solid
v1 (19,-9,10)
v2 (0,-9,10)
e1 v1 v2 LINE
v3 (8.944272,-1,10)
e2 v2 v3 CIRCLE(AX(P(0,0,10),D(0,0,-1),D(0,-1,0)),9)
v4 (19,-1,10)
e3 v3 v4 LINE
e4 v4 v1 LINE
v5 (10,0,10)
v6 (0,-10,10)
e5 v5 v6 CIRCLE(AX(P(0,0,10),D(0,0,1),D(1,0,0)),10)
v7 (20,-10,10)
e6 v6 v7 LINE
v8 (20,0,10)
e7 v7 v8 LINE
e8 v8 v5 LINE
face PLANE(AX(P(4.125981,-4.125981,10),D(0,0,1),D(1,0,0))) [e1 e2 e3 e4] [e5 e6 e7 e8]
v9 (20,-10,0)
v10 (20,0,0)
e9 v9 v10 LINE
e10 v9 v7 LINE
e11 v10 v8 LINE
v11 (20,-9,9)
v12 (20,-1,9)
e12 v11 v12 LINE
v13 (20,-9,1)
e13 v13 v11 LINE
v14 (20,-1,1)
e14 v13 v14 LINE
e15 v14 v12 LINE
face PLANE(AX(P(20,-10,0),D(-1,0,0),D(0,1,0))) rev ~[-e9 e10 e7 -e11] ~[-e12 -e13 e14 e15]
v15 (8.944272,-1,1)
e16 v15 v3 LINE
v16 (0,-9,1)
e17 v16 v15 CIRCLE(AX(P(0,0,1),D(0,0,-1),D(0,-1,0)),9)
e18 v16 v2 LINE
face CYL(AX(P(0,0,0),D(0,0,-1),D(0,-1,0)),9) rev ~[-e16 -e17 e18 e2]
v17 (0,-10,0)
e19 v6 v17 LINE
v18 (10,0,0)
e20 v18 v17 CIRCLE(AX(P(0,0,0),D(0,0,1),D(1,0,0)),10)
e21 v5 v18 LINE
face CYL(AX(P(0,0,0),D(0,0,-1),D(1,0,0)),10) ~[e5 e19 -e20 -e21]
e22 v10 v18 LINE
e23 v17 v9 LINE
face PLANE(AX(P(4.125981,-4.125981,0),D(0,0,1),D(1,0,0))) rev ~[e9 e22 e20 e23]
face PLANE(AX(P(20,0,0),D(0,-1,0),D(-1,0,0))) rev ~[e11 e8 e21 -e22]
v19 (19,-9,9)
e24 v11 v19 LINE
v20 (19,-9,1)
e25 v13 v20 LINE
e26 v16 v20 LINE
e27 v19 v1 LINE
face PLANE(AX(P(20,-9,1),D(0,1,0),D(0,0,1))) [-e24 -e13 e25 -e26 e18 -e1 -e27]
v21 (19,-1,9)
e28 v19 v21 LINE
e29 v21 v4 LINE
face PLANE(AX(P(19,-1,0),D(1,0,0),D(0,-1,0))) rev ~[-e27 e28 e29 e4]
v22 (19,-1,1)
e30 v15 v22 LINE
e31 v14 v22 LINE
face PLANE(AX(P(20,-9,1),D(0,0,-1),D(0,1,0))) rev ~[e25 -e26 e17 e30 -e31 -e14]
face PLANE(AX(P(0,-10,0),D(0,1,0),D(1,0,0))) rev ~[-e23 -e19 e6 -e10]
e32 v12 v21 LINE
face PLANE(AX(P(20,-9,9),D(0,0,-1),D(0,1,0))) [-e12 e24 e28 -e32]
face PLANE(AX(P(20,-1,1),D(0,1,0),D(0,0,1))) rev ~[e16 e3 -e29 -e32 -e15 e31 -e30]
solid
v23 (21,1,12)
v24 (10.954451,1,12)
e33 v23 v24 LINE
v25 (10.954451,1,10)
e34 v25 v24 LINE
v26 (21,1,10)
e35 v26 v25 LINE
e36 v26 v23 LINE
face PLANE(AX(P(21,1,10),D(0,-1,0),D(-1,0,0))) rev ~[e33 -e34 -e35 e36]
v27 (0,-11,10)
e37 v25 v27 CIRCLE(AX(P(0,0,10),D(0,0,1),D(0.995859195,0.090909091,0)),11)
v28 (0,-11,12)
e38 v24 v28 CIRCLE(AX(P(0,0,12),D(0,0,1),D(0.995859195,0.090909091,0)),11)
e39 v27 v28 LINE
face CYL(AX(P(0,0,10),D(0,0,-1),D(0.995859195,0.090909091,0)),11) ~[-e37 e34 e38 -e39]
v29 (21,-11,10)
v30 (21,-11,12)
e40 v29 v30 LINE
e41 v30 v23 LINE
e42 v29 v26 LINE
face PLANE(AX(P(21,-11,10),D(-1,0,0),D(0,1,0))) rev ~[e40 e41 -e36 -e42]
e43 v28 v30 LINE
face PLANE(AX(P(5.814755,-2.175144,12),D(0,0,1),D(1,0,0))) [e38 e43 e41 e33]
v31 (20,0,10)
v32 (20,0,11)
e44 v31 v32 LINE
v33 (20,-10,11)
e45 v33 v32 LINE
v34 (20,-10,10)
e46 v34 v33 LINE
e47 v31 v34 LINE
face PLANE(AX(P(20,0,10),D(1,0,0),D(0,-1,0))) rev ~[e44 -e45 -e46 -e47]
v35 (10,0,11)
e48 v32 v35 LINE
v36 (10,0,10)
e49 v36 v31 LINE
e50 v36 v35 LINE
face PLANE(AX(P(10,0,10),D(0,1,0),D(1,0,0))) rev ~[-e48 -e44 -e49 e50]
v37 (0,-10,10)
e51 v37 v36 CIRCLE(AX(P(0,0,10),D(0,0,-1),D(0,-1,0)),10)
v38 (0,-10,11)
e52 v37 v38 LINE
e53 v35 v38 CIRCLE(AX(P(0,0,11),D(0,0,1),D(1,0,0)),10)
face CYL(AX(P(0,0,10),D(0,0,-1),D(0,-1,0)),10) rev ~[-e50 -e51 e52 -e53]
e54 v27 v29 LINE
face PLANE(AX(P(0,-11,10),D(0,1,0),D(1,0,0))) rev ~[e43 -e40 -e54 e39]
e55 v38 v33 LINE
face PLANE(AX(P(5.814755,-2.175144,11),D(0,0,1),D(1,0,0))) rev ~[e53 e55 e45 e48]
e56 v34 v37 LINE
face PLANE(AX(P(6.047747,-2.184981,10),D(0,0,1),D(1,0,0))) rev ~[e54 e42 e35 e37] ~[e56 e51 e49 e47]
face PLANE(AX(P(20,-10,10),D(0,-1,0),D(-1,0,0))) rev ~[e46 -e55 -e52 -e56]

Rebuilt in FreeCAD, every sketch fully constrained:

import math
import FreeCAD as App
import Part
import Sketcher
from FreeCAD import Vector
Q = App.Units.Quantity


def add_polygon(sketch, points):
    """Adds a closed chain of lines whose ends are joined by coincident constraints."""
    first, n = sketch.GeometryCount, len(points)
    for a, b in zip(points, points[1:] + points[:1]):
        sketch.addGeometry(Part.LineSegment(App.Vector(*a, 0), App.Vector(*b, 0)), False)
    for i in range(n):
        sketch.addConstraint(Sketcher.Constraint("Coincident", first + i, 2, first + (i + 1) % n, 1))

doc = App.newDocument("Part")
body = doc.addObject("PartDesign::Body", "Body")

sketch1 = body.newObject("Sketcher::SketchObject", "Sketch")
sketch1.AttachmentSupport = (doc.getObject("XY_Plane"), [""])
sketch1.MapMode = "FlatFace"
sketch1.addGeometry([
    Part.LineSegment(Vector(0, -10, 0), Vector(20, -10, 0)),
    Part.LineSegment(Vector(20, -10, 0), Vector(20, 0, 0)),
    Part.LineSegment(Vector(20, 0, 0), Vector(10, 0, 0)),
    Part.ArcOfCircle(Part.Circle(Vector(0, 0, 0), Vector(0, 0, 1), 10), math.radians(0), math.radians(270)),
], False)
sketch1.addConstraint([
    Sketcher.Constraint("Coincident", 0, 2, 1, 1),
    Sketcher.Constraint("Coincident", 1, 2, 2, 1),
    Sketcher.Constraint("Coincident", 2, 2, 3, 1),
    Sketcher.Constraint("Tangent", 3, 2, 0, 1),
    Sketcher.Constraint("Horizontal", 0),
    Sketcher.Constraint("Vertical", 1),
    Sketcher.Constraint("Horizontal", 2),
    Sketcher.Constraint("Coincident", 3, 3, -1, 1),
    Sketcher.Constraint("PointOnObject", 1, 2, -1),
    Sketcher.Constraint("Equal", 2, 1),
    Sketcher.Constraint("Radius", 3, Q("10 mm")),
])
pad1 = body.newObject("PartDesign::Pad", "Pad")
pad1.Profile = sketch1
pad1.Length = 10

sketch2 = body.newObject("Sketcher::SketchObject", "Sketch001")
sketch2.AttachmentSupport = (doc.getObject("XY_Plane"), [""])
sketch2.MapMode = "FlatFace"
sketch2.addGeometry([
    Part.LineSegment(Vector(19, -9, 0), Vector(0, -9, 0)),
    Part.ArcOfCircle(Part.Circle(Vector(0, 0, 0), Vector(0, 0, 1), 9), math.radians(-6), math.radians(270)),
    Part.LineSegment(Vector(9, -1, 0), Vector(19, -1, 0)),
    Part.LineSegment(Vector(19, -1, 0), Vector(19, -9, 0)),
], False)
sketch2.addConstraint([
    Sketcher.Constraint("Tangent", 0, 2, 1, 2),
    Sketcher.Constraint("Coincident", 1, 1, 2, 1),
    Sketcher.Constraint("Coincident", 2, 2, 3, 1),
    Sketcher.Constraint("Coincident", 3, 2, 0, 1),
    Sketcher.Constraint("Horizontal", 0),
    Sketcher.Constraint("Horizontal", 2),
    Sketcher.Constraint("Vertical", 3),
    Sketcher.Constraint("Coincident", 1, 3, -1, 1),
    Sketcher.Constraint("Radius", 1, Q("9 mm")),
    Sketcher.Constraint("DistanceX", 0, 2, 0, 1, Q("19 mm")),
    Sketcher.Constraint("DistanceY", 3, 2, 3, 1, Q("8 mm")),
])
pocket1 = body.newObject("PartDesign::Pocket", "Pocket")
pocket1.Profile = sketch2
pocket1.Type = "ThroughAll"
pocket1.Reversed = True

sketch3 = body.newObject("Sketcher::SketchObject", "Sketch002")
sketch3.AttachmentSupport = (doc.getObject("YZ_Plane"), [""])
sketch3.MapMode = "FlatFace"
sketch3.AttachmentOffset = App.Placement(Vector(0, 0, 20), App.Rotation())
add_polygon(sketch3, [(-9, 9), (-9, 1), (-1, 1), (-1, 9)])
sketch3.addConstraint([
    Sketcher.Constraint("Vertical", 0),
    Sketcher.Constraint("Horizontal", 1),
    Sketcher.Constraint("Vertical", 2),
    Sketcher.Constraint("Horizontal", 3),
    Sketcher.Constraint("Equal", 3, 0),
    Sketcher.Constraint("DistanceX", 1, 1, 1, 2, Q("8 mm")),
    Sketcher.Constraint("DistanceX", 0, 2, -1, 1, Q("9 mm")),
    Sketcher.Constraint("DistanceY", -1, 1, 0, 2, Q("1 mm")),
])
pocket2 = body.newObject("PartDesign::Pocket", "Pocket001")
pocket2.Profile = sketch3
pocket2.Length = 1

sketch4 = body.newObject("Sketcher::SketchObject", "Sketch003")
sketch4.AttachmentSupport = (doc.getObject("XY_Plane"), [""])
sketch4.MapMode = "FlatFace"
sketch4.addGeometry([
    Part.LineSegment(Vector(20, 0, 0), Vector(10, 0, 0)),
    Part.ArcOfCircle(Part.Circle(Vector(0, 0, 0), Vector(0, 0, 1), 10), math.radians(0), math.radians(270)),
    Part.LineSegment(Vector(0, -10, 0), Vector(20, -10, 0)),
    Part.LineSegment(Vector(20, -10, 0), Vector(20, 0, 0)),
], False)
sketch4.addConstraint([
    Sketcher.Constraint("Coincident", 0, 2, 1, 1),
    Sketcher.Constraint("Tangent", 1, 2, 2, 1),
    Sketcher.Constraint("Coincident", 2, 2, 3, 1),
    Sketcher.Constraint("Coincident", 3, 2, 0, 1),
    Sketcher.Constraint("Horizontal", 0),
    Sketcher.Constraint("Horizontal", 2),
    Sketcher.Constraint("Vertical", 3),
    Sketcher.Constraint("Coincident", 1, 3, -1, 1),
    Sketcher.Constraint("PointOnObject", 0, 2, -1),
    Sketcher.Constraint("Equal", 0, 3),
    Sketcher.Constraint("Radius", 1, Q("10 mm")),
])
pad2 = body.newObject("PartDesign::Pad", "Pad001")
pad2.Profile = sketch4
pad2.Length = 1
body2 = doc.addObject("PartDesign::Body", "Body001")

sketch5 = body2.newObject("Sketcher::SketchObject", "Sketch004")
sketch5.AttachmentSupport = (doc.getObject("XY_Plane001"), [""])
sketch5.MapMode = "FlatFace"
sketch5.AttachmentOffset = App.Placement(Vector(0, 0, 10), App.Rotation())
sketch5.addGeometry([
    Part.LineSegment(Vector(21, 1, 0), Vector(11, 1, 0)),
    Part.ArcOfCircle(Part.Circle(Vector(0, 0, 0), Vector(0, 0, 1), 11), math.radians(5), math.radians(270)),
    Part.LineSegment(Vector(0, -11, 0), Vector(21, -11, 0)),
    Part.LineSegment(Vector(21, -11, 0), Vector(21, 1, 0)),
    Part.LineSegment(Vector(20, 0, 0), Vector(20, -10, 0)),
    Part.LineSegment(Vector(20, -10, 0), Vector(0, -10, 0)),
    Part.ArcOfCircle(Part.Circle(Vector(0, 0, 0), Vector(0, 0, 1), 10), math.radians(0), math.radians(270)),
    Part.LineSegment(Vector(10, 0, 0), Vector(20, 0, 0)),
], False)
sketch5.addConstraint([
    Sketcher.Constraint("Coincident", 0, 2, 1, 1),
    Sketcher.Constraint("Tangent", 1, 2, 2, 1),
    Sketcher.Constraint("Coincident", 2, 2, 3, 1),
    Sketcher.Constraint("Coincident", 3, 2, 0, 1),
    Sketcher.Constraint("Coincident", 4, 2, 5, 1),
    Sketcher.Constraint("Tangent", 5, 2, 6, 2),
    Sketcher.Constraint("Coincident", 6, 1, 7, 1),
    Sketcher.Constraint("Coincident", 7, 2, 4, 1),
    Sketcher.Constraint("Horizontal", 0),
    Sketcher.Constraint("Horizontal", 2),
    Sketcher.Constraint("Vertical", 3),
    Sketcher.Constraint("Vertical", 4),
    Sketcher.Constraint("Horizontal", 5),
    Sketcher.Constraint("Horizontal", 7),
    Sketcher.Constraint("Coincident", 1, 3, -1, 1),
    Sketcher.Constraint("Coincident", 6, 3, -1, 1),
    Sketcher.Constraint("PointOnObject", 6, 1, -1),
    Sketcher.Constraint("Equal", 7, 4),
    Sketcher.Constraint("Radius", 1, Q("11 mm")),
    Sketcher.Constraint("Radius", 6, Q("10 mm")),
    Sketcher.Constraint("DistanceX", 2, 1, 2, 2, Q("21 mm")),
    Sketcher.Constraint("DistanceY", 3, 1, 3, 2, Q("12 mm")),
])
pad3 = body2.newObject("PartDesign::Pad", "Pad002")
pad3.Profile = sketch5
pad3.Length = 2

sketch6 = body2.newObject("Sketcher::SketchObject", "Sketch005")
sketch6.AttachmentSupport = (doc.getObject("XY_Plane001"), [""])
sketch6.MapMode = "FlatFace"
sketch6.AttachmentOffset = App.Placement(Vector(0, 0, 12), App.Rotation())
sketch6.addGeometry([
    Part.LineSegment(Vector(20, 0, 0), Vector(10, 0, 0)),
    Part.ArcOfCircle(Part.Circle(Vector(0, 0, 0), Vector(0, 0, 1), 10), math.radians(0), math.radians(270)),
    Part.LineSegment(Vector(0, -10, 0), Vector(20, -10, 0)),
    Part.LineSegment(Vector(20, -10, 0), Vector(20, 0, 0)),
], False)
sketch6.addConstraint([
    Sketcher.Constraint("Coincident", 0, 2, 1, 1),
    Sketcher.Constraint("Tangent", 1, 2, 2, 1),
    Sketcher.Constraint("Coincident", 2, 2, 3, 1),
    Sketcher.Constraint("Coincident", 3, 2, 0, 1),
    Sketcher.Constraint("Horizontal", 0),
    Sketcher.Constraint("Horizontal", 2),
    Sketcher.Constraint("Vertical", 3),
    Sketcher.Constraint("Coincident", 1, 3, -1, 1),
    Sketcher.Constraint("PointOnObject", 0, 2, -1),
    Sketcher.Constraint("Equal", 0, 3),
    Sketcher.Constraint("Radius", 1, Q("10 mm")),
])
pad4 = body2.newObject("PartDesign::Pad", "Pad003")
pad4.Profile = sketch6
pad4.Length = 1
pad4.Reversed = True

doc.recompute()
